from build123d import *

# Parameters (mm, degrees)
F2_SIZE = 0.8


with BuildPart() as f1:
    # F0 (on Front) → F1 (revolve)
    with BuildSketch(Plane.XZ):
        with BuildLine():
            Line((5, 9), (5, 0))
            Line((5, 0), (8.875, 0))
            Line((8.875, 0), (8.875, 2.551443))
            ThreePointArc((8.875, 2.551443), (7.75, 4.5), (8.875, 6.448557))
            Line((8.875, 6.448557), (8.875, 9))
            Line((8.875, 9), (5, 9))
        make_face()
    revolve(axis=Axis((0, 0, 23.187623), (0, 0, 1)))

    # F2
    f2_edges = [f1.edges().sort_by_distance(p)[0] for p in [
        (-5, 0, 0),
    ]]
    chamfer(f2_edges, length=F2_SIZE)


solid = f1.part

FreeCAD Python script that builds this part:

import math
import FreeCAD as App
import Part
import Sketcher


def edges_at(feature, points):
    """Names of the edges that pass closest to the given points."""
    edges = feature.Shape.Edges
    near = lambda p: min(range(len(edges)), key=lambda i: edges[i].distToShape(Part.Vertex(*p))[0])
    return sorted({f"Edge{near(p) + 1}" for p in points})

doc = App.newDocument("Part")
body = doc.addObject("PartDesign::Body", "Body")

sketch1 = body.newObject("Sketcher::SketchObject", "Sketch")
sketch1.AttachmentSupport = (doc.getObject("XZ_Plane"), [""])
sketch1.MapMode = "FlatFace"
sketch1.addGeometry([
    Part.LineSegment(App.Vector(5, 9, 0), App.Vector(5, 0, 0)),
    Part.LineSegment(App.Vector(5, 0, 0), App.Vector(8.875, 0, 0)),
    Part.LineSegment(App.Vector(8.875, 0, 0), App.Vector(8.875, 2.551443, 0)),
    Part.ArcOfCircle(Part.Circle(App.Vector(10, 4.5, 0), App.Vector(0, 0, 1), 2.25), math.radians(119.999996), math.radians(240.000004)),
    Part.LineSegment(App.Vector(8.875, 6.448557, 0), App.Vector(8.875, 9, 0)),
    Part.LineSegment(App.Vector(8.875, 9, 0), App.Vector(5, 9, 0)),
], False)
sketch1.addConstraint([
    Sketcher.Constraint("Coincident", 0, 2, 1, 1),
    Sketcher.Constraint("Coincident", 1, 2, 2, 1),
    Sketcher.Constraint("Coincident", 2, 2, 3, 2),
    Sketcher.Constraint("Coincident", 3, 1, 4, 1),
    Sketcher.Constraint("Coincident", 4, 2, 5, 1),
    Sketcher.Constraint("Coincident", 5, 2, 0, 1),
    Sketcher.Constraint("Vertical", 0),
    Sketcher.Constraint("Horizontal", 1),
    Sketcher.Constraint("Vertical", 2),
    Sketcher.Constraint("Vertical", 4),
    Sketcher.Constraint("Horizontal", 5),
    Sketcher.Constraint("PointOnObject", 0, 2, -1),
    Sketcher.Constraint("Vertical", 2, 2, 3, 1),
    Sketcher.Constraint("Equal", 2, 4),
    Sketcher.Constraint("DistanceY", 0, 2, 0, 1, 9.0),
    Sketcher.Constraint("Radius", 3, 2.25),
    Sketcher.Constraint("DistanceX", -1, 1, 3, 3, 10.0),
    Sketcher.Constraint("DistanceX", -1, 1, 0, 2, 5.0),
    Sketcher.Constraint("DistanceX", 1, 1, 1, 2, 3.875),
])
revolution = body.newObject("PartDesign::Revolution", "Revolution")
revolution.Profile = sketch1
revolution.ReferenceAxis = (sketch1, ["V_Axis"])
revolution.Angle = 360
doc.recompute()

chamfer = body.newObject("PartDesign::Chamfer", "Chamfer")
chamfer.Base = (revolution, edges_at(revolution, [(-5, 0, 0)]))
chamfer.Size = 0.8

doc.recompute()
